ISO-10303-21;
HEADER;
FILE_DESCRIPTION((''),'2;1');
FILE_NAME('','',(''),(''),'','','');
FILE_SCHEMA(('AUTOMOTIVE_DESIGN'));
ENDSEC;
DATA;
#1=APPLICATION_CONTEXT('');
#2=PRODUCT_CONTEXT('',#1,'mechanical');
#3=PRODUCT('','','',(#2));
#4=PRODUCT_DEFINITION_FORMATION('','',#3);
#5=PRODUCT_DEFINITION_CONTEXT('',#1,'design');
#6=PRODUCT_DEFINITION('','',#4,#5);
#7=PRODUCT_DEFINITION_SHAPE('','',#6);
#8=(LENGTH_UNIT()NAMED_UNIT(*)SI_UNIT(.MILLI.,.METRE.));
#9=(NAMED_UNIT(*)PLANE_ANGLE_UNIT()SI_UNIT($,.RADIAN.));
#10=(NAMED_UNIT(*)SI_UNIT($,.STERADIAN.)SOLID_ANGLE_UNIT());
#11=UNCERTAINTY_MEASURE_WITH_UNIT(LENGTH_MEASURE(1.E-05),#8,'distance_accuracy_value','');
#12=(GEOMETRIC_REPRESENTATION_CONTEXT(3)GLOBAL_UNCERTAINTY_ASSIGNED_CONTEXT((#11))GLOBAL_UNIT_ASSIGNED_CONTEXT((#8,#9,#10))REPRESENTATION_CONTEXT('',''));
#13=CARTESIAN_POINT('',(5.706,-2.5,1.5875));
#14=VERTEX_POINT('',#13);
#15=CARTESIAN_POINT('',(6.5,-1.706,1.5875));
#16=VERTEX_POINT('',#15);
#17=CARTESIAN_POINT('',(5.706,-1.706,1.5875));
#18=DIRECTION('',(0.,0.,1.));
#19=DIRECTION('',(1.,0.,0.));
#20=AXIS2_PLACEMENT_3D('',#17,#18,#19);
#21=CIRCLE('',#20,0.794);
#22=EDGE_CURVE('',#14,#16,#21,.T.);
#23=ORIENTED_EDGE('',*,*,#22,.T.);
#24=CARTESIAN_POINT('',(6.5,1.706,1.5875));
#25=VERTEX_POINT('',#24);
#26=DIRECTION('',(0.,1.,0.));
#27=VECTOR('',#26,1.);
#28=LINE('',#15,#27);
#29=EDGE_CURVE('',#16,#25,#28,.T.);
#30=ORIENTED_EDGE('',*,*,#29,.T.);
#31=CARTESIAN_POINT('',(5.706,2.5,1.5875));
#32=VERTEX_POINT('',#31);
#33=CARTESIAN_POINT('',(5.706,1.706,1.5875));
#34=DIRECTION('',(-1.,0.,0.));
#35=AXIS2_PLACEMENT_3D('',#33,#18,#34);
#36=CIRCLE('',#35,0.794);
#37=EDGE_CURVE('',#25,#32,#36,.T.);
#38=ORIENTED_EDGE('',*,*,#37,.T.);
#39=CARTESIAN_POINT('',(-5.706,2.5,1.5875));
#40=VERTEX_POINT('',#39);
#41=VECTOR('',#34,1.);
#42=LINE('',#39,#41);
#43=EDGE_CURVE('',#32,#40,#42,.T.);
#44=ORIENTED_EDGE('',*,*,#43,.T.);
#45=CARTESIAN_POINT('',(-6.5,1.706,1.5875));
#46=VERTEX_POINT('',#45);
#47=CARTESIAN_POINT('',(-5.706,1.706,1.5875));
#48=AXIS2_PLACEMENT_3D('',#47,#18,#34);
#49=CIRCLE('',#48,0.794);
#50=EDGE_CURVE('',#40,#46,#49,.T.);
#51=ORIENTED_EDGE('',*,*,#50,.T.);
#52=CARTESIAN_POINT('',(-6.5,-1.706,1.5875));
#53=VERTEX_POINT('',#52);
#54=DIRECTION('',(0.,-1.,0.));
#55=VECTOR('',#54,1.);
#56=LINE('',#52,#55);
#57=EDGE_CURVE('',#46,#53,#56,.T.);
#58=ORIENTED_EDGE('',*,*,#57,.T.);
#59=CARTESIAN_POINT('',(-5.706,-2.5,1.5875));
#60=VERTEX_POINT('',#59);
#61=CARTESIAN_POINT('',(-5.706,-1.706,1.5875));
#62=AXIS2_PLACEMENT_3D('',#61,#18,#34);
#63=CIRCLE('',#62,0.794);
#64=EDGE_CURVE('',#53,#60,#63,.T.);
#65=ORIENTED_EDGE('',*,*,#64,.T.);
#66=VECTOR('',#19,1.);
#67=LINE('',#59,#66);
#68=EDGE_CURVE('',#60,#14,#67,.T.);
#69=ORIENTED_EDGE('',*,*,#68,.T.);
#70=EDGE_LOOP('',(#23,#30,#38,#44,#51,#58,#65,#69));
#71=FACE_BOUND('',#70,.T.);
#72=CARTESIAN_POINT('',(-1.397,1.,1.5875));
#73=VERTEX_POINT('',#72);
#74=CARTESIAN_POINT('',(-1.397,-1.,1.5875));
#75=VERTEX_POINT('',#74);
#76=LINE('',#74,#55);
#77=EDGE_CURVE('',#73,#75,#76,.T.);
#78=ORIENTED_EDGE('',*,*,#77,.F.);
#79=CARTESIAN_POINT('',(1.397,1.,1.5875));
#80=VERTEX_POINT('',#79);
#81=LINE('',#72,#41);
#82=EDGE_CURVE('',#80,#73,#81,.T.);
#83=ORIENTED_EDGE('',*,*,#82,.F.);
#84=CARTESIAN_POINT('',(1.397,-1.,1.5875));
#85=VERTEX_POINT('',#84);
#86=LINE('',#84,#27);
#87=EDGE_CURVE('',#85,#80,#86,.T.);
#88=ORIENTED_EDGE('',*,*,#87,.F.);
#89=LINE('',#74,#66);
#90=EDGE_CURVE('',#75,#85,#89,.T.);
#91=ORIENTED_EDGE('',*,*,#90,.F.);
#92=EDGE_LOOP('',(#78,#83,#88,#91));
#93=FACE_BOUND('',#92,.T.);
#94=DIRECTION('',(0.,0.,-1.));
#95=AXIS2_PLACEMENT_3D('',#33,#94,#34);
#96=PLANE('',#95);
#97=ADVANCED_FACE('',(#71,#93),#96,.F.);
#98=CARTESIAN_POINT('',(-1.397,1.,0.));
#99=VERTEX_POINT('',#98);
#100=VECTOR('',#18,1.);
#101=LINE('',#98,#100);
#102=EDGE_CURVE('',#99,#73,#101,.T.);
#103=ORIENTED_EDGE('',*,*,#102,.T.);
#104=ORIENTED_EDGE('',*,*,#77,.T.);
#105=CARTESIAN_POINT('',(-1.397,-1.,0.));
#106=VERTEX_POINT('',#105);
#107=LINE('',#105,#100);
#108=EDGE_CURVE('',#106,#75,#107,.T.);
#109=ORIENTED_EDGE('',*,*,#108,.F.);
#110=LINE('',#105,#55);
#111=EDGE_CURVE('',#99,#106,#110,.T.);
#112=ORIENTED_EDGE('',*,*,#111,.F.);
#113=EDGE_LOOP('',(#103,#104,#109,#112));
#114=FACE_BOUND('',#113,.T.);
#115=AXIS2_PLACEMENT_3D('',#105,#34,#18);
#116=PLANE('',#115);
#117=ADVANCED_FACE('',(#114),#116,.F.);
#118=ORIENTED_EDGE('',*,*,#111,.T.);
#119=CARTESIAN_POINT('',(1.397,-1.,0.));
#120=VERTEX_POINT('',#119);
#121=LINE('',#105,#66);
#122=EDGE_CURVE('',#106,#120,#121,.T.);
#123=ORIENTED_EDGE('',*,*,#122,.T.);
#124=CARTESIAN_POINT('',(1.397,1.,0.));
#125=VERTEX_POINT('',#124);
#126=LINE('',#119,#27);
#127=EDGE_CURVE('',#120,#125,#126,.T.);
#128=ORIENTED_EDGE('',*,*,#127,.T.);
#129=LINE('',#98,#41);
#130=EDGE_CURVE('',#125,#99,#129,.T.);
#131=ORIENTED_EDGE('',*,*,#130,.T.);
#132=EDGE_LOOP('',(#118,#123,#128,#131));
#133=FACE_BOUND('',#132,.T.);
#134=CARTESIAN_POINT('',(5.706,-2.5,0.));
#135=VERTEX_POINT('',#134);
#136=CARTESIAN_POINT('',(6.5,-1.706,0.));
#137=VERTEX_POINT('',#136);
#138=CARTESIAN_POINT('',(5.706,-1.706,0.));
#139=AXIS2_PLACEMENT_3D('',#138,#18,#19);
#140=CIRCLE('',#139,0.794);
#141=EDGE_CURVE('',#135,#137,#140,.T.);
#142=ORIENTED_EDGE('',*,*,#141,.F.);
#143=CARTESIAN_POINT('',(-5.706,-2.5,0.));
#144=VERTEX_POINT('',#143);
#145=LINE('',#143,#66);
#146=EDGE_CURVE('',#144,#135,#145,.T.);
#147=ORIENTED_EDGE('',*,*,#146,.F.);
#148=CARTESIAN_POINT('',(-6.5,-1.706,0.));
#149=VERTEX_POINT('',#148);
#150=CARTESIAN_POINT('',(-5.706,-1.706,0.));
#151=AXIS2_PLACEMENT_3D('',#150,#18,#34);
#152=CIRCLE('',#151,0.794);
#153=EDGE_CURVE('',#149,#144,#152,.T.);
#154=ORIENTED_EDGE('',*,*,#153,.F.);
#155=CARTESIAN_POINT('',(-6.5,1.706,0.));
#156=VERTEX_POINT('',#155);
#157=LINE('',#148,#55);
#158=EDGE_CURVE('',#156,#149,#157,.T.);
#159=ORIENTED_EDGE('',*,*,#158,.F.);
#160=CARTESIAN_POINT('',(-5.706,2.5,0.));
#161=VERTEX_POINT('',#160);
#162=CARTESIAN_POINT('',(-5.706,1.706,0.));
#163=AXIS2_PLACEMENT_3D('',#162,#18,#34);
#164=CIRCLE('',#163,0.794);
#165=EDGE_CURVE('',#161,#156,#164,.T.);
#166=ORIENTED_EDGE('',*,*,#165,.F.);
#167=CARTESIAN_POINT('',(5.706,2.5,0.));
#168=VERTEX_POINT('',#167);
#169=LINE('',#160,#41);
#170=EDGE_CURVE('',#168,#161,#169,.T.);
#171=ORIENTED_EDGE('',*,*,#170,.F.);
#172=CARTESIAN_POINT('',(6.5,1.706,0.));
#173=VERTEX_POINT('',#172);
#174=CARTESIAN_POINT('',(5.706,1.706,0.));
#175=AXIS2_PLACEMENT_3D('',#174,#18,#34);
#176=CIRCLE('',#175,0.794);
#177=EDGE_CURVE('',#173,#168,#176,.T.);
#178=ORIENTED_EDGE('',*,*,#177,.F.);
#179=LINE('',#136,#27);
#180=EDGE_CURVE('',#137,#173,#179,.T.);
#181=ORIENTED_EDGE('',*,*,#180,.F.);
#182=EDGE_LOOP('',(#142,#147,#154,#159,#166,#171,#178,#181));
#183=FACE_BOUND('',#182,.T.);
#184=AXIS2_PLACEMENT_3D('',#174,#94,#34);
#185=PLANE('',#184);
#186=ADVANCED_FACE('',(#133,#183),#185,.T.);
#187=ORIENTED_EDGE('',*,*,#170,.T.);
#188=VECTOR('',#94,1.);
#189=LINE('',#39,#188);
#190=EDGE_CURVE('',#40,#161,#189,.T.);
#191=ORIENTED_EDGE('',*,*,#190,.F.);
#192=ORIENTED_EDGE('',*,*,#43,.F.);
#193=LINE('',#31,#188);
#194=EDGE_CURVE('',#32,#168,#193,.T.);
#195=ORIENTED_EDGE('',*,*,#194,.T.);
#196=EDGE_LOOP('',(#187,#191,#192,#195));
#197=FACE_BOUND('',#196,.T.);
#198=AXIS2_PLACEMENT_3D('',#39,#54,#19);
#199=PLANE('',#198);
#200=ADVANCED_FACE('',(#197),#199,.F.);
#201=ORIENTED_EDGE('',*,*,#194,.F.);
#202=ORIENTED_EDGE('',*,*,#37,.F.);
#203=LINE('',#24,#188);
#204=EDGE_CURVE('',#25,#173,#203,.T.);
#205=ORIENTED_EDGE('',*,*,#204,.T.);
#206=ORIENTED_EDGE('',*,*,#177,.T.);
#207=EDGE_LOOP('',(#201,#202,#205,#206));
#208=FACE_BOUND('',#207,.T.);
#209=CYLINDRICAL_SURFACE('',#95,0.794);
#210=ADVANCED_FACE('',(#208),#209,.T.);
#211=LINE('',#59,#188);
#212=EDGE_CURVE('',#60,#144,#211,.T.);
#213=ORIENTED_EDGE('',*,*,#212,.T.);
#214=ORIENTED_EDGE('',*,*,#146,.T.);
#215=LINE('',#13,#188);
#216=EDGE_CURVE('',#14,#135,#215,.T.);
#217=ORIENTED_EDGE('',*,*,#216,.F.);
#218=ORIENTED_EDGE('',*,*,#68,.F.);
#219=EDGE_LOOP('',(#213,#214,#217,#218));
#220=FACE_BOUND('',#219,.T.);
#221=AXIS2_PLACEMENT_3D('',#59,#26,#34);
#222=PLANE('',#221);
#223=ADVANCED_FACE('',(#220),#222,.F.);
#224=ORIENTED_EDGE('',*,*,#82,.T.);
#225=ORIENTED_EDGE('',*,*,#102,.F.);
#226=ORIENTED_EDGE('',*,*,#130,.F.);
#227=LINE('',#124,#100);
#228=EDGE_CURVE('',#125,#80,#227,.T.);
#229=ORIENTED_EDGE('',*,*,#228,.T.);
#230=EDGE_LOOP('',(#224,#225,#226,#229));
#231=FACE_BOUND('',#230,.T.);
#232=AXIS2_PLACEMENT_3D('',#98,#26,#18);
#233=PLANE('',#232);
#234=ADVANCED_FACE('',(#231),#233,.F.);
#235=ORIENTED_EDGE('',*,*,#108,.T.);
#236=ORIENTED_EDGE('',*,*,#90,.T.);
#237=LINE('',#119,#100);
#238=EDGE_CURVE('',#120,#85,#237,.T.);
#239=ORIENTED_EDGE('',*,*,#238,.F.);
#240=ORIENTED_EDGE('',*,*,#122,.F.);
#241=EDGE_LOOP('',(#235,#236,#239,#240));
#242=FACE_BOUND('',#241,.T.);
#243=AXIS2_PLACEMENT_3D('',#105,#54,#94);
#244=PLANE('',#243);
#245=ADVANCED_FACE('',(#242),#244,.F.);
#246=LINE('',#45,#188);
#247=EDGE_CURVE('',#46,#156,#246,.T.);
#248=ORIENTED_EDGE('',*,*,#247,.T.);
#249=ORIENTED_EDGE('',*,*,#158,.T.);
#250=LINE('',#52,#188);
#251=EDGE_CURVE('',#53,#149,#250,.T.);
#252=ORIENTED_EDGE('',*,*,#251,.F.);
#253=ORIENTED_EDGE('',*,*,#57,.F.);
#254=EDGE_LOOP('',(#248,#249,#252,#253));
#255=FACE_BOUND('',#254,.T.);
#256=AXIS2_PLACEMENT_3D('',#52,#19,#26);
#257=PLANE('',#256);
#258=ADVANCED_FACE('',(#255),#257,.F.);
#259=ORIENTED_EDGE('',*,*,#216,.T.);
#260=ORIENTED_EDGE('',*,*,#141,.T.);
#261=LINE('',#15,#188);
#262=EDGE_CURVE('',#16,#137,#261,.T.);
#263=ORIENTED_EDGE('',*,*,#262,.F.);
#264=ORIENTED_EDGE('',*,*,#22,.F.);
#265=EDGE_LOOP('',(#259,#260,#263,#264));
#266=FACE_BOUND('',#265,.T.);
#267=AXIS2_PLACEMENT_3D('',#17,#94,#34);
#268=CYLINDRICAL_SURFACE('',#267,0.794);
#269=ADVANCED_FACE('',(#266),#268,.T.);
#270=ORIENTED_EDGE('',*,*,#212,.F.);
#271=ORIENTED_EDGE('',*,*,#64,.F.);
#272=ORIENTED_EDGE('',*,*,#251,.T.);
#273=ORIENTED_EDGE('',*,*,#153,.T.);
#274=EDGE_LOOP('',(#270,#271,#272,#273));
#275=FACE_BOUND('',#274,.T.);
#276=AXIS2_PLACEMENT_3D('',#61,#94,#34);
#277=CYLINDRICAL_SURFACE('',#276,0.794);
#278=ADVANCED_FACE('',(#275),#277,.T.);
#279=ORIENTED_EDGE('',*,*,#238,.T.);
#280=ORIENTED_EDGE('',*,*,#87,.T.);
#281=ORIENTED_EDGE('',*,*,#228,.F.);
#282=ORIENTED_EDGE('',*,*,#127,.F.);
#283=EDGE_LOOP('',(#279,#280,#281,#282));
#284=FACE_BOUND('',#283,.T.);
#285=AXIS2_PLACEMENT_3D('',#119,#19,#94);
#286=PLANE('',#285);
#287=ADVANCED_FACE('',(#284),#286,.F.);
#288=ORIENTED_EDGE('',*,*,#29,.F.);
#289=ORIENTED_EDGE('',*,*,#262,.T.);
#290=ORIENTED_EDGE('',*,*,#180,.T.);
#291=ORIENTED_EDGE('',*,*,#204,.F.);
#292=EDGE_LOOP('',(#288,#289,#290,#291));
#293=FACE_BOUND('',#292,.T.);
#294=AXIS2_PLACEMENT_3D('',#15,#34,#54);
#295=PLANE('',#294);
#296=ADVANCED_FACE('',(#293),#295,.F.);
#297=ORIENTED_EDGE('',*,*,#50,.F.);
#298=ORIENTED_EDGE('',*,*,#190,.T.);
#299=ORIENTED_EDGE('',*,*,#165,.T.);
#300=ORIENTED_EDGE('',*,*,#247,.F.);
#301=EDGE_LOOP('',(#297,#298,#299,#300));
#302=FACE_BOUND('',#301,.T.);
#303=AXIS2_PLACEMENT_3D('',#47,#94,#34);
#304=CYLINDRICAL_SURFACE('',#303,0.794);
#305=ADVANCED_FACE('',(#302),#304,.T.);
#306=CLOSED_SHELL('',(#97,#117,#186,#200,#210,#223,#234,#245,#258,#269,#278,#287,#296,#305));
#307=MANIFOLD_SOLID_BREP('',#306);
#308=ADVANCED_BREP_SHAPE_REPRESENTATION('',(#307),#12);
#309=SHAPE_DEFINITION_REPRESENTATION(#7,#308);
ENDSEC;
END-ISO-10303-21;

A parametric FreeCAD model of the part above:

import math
import FreeCAD as App
import Part
import Sketcher

V = App.Vector
Q = App.Units.Quantity

doc = App.newDocument("Part")
body = doc.addObject("PartDesign::Body", "Body")

# Sketch on XY plane
sketch1 = doc.addObject("Sketcher::SketchObject", "Sketch")
body.addObject(sketch1)
sketch1.AttachmentSupport = (doc.XY_Plane, [""])
sketch1.MapMode = "FlatFace"
sketch1.addGeometry([
    Part.LineSegment(V(-5.7, -2.5, 0), V(5.7, -2.5, 0)),  # 0
    Part.ArcOfCircle(Part.Circle(V(5.7, -1.7, 0), V(0, 0, 1), 0.8), math.radians(-90), math.radians(0)),  # 1
    Part.LineSegment(V(6.5, -1.7, 0), V(6.5, 1.7, 0)),  # 2
    Part.ArcOfCircle(Part.Circle(V(5.7, 1.7, 0), V(0, 0, 1), 0.8), math.radians(0), math.radians(90)),  # 3
    Part.LineSegment(V(5.7, 2.5, 0), V(-5.7, 2.5, 0)),  # 4
    Part.ArcOfCircle(Part.Circle(V(-5.7, 1.7, 0), V(0, 0, 1), 0.8), math.radians(90), math.radians(180)),  # 5
    Part.LineSegment(V(-6.5, 1.7, 0), V(-6.5, -1.7, 0)),  # 6
    Part.ArcOfCircle(Part.Circle(V(-5.7, -1.7, 0), V(0, 0, 1), 0.8), math.radians(-180), math.radians(-90)),  # 7
], False)
sketch1.addConstraint([
    Sketcher.Constraint("Tangent", 0, 2, 1, 1),
    Sketcher.Constraint("Tangent", 1, 2, 2, 1),
    Sketcher.Constraint("Tangent", 2, 2, 3, 1),
    Sketcher.Constraint("Tangent", 3, 2, 4, 1),
    Sketcher.Constraint("Tangent", 4, 2, 5, 1),
    Sketcher.Constraint("Tangent", 5, 2, 6, 1),
    Sketcher.Constraint("Tangent", 6, 2, 7, 1),
    Sketcher.Constraint("Tangent", 7, 2, 0, 1),
    Sketcher.Constraint("Horizontal", 0),
    Sketcher.Constraint("Vertical", 2),
    Sketcher.Constraint("Horizontal", 4),
    Sketcher.Constraint("Vertical", 6),
    Sketcher.Constraint("Equal", 1, 3),
    Sketcher.Constraint("Equal", 3, 5),
    Sketcher.Constraint("Equal", 5, 7),
    Sketcher.Constraint("Symmetric", 1, 3, 5, 3, -1, 1),
    Sketcher.Constraint("Radius", 1, 0.794),
    Sketcher.Constraint("DistanceX", 0, 1, 0, 2, 11.412),
    Sketcher.Constraint("DistanceY", 2, 1, 2, 2, 3.412),
])
pad1 = doc.addObject("PartDesign::Pad", "Pad")
body.addObject(pad1)
pad1.Profile = sketch1
pad1.Length = Q("0.0625 in")

# Sketch on XY plane
sketch2 = doc.addObject("Sketcher::SketchObject", "Sketch001")
body.addObject(sketch2)
sketch2.AttachmentSupport = (doc.XY_Plane, [""])
sketch2.MapMode = "FlatFace"
sketch2.AttachmentOffset = App.Placement(V(0, 0, 0.0625 * 25.4), App.Rotation())
sketch2.addGeometry([
    Part.LineSegment(V(-1.4, 1, 0), V(-1.4, -1, 0)),
    Part.LineSegment(V(-1.4, -1, 0), V(1.4, -1, 0)),
    Part.LineSegment(V(1.4, -1, 0), V(1.4, 1, 0)),
    Part.LineSegment(V(1.4, 1, 0), V(-1.4, 1, 0)),
], False)
sketch2.addConstraint([
    Sketcher.Constraint("Coincident", 0, 2, 1, 1),
    Sketcher.Constraint("Coincident", 1, 2, 2, 1),
    Sketcher.Constraint("Coincident", 2, 2, 3, 1),
    Sketcher.Constraint("Coincident", 3, 2, 0, 1),
    Sketcher.Constraint("Vertical", 0),
    Sketcher.Constraint("Horizontal", 1),
    Sketcher.Constraint("Vertical", 2),
    Sketcher.Constraint("Horizontal", 3),
    Sketcher.Constraint("Symmetric", 0, 2, 2, 2, -1, 1),
    Sketcher.Constraint("DistanceX", 1, 1, 1, 2, Q("0.11 in")),
    Sketcher.Constraint("DistanceY", 0, 2, 0, 1, 2.0),
])
pocket1 = doc.addObject("PartDesign::Pocket", "Pocket")
body.addObject(pocket1)
pocket1.Profile = sketch2
pocket1.Type = "ThroughAll"

doc.recompute()
